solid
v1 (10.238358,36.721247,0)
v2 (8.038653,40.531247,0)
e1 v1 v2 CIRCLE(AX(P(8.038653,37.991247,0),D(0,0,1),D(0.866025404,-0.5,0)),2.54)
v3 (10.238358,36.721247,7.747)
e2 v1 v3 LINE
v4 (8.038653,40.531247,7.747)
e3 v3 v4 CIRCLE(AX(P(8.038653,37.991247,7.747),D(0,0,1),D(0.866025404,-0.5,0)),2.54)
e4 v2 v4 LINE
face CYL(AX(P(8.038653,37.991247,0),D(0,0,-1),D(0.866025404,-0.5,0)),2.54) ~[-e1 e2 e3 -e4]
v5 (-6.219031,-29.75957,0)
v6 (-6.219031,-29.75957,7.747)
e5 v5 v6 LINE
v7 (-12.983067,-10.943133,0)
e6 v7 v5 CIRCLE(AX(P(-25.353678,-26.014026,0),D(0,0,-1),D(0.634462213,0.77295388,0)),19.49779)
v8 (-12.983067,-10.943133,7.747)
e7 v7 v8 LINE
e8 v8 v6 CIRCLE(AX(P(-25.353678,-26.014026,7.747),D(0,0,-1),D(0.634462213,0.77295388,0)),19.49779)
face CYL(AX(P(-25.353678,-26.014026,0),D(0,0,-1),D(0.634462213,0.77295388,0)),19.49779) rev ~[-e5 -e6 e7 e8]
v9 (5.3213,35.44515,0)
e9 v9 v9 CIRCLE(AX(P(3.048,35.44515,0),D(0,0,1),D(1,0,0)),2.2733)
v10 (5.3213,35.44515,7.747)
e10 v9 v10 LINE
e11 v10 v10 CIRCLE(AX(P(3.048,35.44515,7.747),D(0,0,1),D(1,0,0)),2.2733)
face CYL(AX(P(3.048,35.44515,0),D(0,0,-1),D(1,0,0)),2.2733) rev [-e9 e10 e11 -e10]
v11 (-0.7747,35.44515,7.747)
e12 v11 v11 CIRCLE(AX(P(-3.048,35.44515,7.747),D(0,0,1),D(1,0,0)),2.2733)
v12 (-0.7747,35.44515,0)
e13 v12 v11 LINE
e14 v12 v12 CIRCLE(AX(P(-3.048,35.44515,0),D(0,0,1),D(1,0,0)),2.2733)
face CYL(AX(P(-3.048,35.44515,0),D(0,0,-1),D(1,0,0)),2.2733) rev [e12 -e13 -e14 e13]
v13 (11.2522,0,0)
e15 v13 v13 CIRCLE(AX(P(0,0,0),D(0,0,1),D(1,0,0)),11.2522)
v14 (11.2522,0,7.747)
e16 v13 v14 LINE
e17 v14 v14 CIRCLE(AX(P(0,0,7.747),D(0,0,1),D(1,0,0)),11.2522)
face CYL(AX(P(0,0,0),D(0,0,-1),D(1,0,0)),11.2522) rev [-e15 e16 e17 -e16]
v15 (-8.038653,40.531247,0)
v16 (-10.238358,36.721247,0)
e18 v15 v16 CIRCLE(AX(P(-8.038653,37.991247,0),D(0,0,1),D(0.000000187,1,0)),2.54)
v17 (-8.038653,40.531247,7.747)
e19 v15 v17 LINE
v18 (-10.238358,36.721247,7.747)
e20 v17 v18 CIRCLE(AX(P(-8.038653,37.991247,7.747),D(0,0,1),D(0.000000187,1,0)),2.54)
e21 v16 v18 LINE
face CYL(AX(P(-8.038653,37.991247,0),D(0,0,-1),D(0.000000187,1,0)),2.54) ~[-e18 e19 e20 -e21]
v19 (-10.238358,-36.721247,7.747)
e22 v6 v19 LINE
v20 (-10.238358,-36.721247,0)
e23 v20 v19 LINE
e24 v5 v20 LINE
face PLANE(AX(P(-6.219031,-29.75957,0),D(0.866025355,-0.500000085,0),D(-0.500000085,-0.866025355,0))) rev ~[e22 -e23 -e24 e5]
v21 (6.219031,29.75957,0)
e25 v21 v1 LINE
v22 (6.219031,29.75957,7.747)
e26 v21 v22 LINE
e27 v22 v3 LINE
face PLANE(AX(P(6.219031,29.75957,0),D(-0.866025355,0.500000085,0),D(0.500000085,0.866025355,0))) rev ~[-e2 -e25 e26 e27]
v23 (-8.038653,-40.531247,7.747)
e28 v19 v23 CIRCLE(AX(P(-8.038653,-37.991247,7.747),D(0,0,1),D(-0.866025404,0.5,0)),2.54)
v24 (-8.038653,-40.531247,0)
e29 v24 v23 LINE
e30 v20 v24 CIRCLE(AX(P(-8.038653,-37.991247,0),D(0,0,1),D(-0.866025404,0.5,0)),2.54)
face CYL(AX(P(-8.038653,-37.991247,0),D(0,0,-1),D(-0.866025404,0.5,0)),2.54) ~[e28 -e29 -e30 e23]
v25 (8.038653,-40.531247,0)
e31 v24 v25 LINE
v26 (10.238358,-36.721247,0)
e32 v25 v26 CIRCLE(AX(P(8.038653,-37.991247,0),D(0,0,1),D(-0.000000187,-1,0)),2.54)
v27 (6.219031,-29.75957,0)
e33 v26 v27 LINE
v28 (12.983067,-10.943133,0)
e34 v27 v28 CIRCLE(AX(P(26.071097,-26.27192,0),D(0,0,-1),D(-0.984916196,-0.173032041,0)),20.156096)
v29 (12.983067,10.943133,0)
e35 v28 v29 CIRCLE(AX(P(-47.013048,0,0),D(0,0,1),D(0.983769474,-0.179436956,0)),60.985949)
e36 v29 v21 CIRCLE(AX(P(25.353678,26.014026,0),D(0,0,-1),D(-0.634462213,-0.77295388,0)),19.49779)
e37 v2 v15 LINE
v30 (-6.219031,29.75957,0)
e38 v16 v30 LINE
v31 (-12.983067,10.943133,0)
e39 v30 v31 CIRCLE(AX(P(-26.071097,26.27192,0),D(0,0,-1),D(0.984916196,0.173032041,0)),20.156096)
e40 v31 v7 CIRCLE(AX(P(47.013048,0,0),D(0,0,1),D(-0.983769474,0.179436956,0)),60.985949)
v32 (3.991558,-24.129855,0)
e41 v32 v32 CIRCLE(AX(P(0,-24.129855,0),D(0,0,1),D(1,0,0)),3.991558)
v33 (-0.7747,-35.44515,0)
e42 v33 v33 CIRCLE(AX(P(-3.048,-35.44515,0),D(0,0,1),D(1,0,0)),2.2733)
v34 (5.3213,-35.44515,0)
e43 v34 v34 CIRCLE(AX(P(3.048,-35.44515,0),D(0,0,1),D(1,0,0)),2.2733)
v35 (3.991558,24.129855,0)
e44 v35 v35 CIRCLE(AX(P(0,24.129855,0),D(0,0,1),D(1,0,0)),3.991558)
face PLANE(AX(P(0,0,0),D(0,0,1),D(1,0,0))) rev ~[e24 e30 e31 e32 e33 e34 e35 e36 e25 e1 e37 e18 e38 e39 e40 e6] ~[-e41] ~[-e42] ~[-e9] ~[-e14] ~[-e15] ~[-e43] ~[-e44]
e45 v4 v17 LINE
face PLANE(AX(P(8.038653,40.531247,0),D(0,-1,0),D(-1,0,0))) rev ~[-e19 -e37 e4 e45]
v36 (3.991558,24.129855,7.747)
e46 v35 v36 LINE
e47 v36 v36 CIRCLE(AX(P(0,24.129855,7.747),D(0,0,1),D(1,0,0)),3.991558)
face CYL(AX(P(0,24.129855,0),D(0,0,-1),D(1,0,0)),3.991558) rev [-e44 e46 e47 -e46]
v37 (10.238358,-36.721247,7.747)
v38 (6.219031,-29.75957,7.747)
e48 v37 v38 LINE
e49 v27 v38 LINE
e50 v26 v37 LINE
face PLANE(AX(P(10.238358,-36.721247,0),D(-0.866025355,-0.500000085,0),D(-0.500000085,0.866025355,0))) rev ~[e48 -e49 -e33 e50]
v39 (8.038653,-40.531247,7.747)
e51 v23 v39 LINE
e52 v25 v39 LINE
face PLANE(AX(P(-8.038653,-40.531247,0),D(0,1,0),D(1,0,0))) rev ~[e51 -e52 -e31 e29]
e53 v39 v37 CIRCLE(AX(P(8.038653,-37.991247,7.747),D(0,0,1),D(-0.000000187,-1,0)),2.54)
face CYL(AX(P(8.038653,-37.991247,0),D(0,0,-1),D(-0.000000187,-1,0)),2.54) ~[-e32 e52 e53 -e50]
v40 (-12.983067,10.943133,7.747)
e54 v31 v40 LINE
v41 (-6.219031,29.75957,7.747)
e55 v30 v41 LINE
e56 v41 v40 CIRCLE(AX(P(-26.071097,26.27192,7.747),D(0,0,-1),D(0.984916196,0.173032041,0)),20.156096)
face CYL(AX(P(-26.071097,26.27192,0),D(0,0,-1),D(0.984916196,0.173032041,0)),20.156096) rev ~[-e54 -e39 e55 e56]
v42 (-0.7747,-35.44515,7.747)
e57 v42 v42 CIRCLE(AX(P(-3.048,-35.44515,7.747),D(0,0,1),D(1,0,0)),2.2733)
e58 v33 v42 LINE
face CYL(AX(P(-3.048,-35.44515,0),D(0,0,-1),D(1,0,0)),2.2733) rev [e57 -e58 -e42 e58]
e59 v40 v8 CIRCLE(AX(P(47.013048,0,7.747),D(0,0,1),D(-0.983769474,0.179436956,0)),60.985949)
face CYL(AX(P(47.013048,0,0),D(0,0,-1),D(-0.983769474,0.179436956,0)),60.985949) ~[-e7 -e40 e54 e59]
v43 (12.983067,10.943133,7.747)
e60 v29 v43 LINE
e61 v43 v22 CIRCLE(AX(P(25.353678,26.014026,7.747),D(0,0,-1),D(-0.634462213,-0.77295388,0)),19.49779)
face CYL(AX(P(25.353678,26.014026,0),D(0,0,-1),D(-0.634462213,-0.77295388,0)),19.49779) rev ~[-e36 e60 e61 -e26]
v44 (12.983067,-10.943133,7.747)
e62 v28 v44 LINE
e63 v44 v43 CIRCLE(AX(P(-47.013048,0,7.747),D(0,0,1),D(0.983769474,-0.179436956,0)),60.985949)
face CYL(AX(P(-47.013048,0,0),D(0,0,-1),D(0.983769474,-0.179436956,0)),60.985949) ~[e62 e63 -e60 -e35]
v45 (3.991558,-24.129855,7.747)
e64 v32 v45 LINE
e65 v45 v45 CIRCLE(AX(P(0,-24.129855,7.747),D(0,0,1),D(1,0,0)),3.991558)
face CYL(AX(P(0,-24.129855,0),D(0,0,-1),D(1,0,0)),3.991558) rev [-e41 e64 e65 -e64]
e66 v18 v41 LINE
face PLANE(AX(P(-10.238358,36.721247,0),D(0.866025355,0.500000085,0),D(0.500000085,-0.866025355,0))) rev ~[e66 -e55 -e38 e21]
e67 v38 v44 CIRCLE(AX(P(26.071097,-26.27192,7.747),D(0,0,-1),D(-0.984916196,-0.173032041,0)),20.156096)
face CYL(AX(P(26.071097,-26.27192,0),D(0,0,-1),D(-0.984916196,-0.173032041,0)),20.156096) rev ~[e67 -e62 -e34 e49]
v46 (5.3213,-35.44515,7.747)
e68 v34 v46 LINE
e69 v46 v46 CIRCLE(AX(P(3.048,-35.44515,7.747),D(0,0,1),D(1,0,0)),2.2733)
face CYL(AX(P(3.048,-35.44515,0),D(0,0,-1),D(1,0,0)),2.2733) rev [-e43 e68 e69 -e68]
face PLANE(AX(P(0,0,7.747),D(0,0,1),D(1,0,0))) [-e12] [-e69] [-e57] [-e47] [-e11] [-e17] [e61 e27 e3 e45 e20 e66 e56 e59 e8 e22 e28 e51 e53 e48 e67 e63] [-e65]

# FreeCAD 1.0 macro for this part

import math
import FreeCAD as App
import Part
import Sketcher

V = App.Vector
Q = App.Units.Quantity

doc = App.newDocument("Part")
body = doc.addObject("PartDesign::Body", "Body")

# Sketch on XY plane
sketch1 = body.newObject("Sketcher::SketchObject", "Sketch")
sketch1.AttachmentSupport = (doc.getObject("XY_Plane"), [""])
sketch1.MapMode = "FlatFace"
sketch1.addGeometry([
    Part.LineSegment(V(-10.2, 36.7, 0), V(-6.2, 29.8, 0)),  # 0
    Part.ArcOfCircle(Part.Circle(V(-26.1, 26.3, 0), V(0, 0, 1), 20.2), math.radians(-50), math.radians(10)),  # 1
    Part.ArcOfCircle(Part.Circle(V(47, 0, 0), V(0, 0, 1), 61), math.radians(170), math.radians(190)),  # 2
    Part.ArcOfCircle(Part.Circle(V(-25.4, -26, 0), V(0, 0, 1), 19.5), math.radians(-11), math.radians(51)),  # 3
    Part.LineSegment(V(-6.2, -29.8, 0), V(-10.2, -36.7, 0)),  # 4
    Part.ArcOfCircle(Part.Circle(V(-8, -38, 0), V(0, 0, 1), 2.5), math.radians(150), math.radians(270)),  # 5
    Part.LineSegment(V(-8, -40.5, 0), V(8, -40.5, 0)),  # 6
    Part.ArcOfCircle(Part.Circle(V(8, -38, 0), V(0, 0, 1), 2.5), math.radians(-90), math.radians(30)),  # 7
    Part.LineSegment(V(10.2, -36.7, 0), V(6.2, -29.8, 0)),  # 8
    Part.ArcOfCircle(Part.Circle(V(26.1, -26.3, 0), V(0, 0, 1), 20.2), math.radians(130), math.radians(190)),  # 9
    Part.ArcOfCircle(Part.Circle(V(-47, 0, 0), V(0, 0, 1), 61), math.radians(-10), math.radians(10)),  # 10
    Part.ArcOfCircle(Part.Circle(V(25.4, 26, 0), V(0, 0, 1), 19.5), math.radians(169), math.radians(231)),  # 11
    Part.LineSegment(V(6.2, 29.8, 0), V(10.2, 36.7, 0)),  # 12
    Part.ArcOfCircle(Part.Circle(V(8, 38, 0), V(0, 0, 1), 2.5), math.radians(-30), math.radians(90)),  # 13
    Part.LineSegment(V(8, 40.5, 0), V(-8, 40.5, 0)),  # 14
    Part.ArcOfCircle(Part.Circle(V(-8, 38, 0), V(0, 0, 1), 2.5), math.radians(90), math.radians(210)),  # 15
    Part.Circle(V(-3, -35.4, 0), V(0, 0, 1), 2.3),  # 16
    Part.Circle(V(0, -24.1, 0), V(0, 0, 1), 4),  # 17
    Part.Circle(V(3, -35.4, 0), V(0, 0, 1), 2.3),  # 18
    Part.Circle(V(0, 0, 0), V(0, 0, 1), 11.3),  # 19
    Part.Circle(V(0, 24.1, 0), V(0, 0, 1), 4),  # 20
    Part.Circle(V(-3, 35.4, 0), V(0, 0, 1), 2.3),  # 21
    Part.Circle(V(3, 35.4, 0), V(0, 0, 1), 2.3),  # 22
], False)
sketch1.addConstraint([
    Sketcher.Constraint("Coincident", 0, 2, 1, 2),
    Sketcher.Constraint("Coincident", 1, 1, 2, 1),
    Sketcher.Constraint("Coincident", 2, 2, 3, 2),
    Sketcher.Constraint("Coincident", 3, 1, 4, 1),
    Sketcher.Constraint("Tangent", 4, 2, 5, 1),
    Sketcher.Constraint("Tangent", 5, 2, 6, 1),
    Sketcher.Constraint("Tangent", 6, 2, 7, 1),
    Sketcher.Constraint("Tangent", 7, 2, 8, 1),
    Sketcher.Constraint("Coincident", 8, 2, 9, 2),
    Sketcher.Constraint("Coincident", 9, 1, 10, 1),
    Sketcher.Constraint("Coincident", 10, 2, 11, 2),
    Sketcher.Constraint("Coincident", 11, 1, 12, 1),
    Sketcher.Constraint("Tangent", 12, 2, 13, 1),
    Sketcher.Constraint("Tangent", 13, 2, 14, 1),
    Sketcher.Constraint("Tangent", 14, 2, 15, 1),
    Sketcher.Constraint("Tangent", 15, 2, 0, 1),
    Sketcher.Constraint("Horizontal", 6),
    Sketcher.Constraint("Horizontal", 14),
    Sketcher.Constraint("Coincident", 19, 3, -1, 1),
    Sketcher.Constraint("Equal", 5, 7),
    Sketcher.Constraint("Equal", 1, 9),
    Sketcher.Constraint("Equal", 2, 10),
    Sketcher.Constraint("Equal", 3, 11),
    Sketcher.Constraint("Equal", 7, 13),
    Sketcher.Constraint("Equal", 13, 15),
    Sketcher.Constraint("Equal", 16, 18),
    Sketcher.Constraint("Equal", 17, 20),
    Sketcher.Constraint("Equal", 18, 21),
    Sketcher.Constraint("Equal", 21, 22),
    Sketcher.Constraint("Symmetric", 1, 3, 9, 3, -1, 1),
    Sketcher.Constraint("Symmetric", 2, 3, 10, 3, -1, 1),
    Sketcher.Constraint("Symmetric", 3, 3, 11, 3, -1, 1),
    Sketcher.Constraint("Symmetric", 5, 3, 13, 3, -1, 1),
    Sketcher.Constraint("Symmetric", 17, 3, 20, 3, -1, 1),
    Sketcher.Constraint("Symmetric", 18, 3, 21, 3, -1, 1),
    Sketcher.Constraint("Symmetric", 16, 3, 22, 3, -1, 1),
    Sketcher.Constraint("Symmetric", 7, 2, 15, 2, -1, 1),
    Sketcher.Constraint("Symmetric", 16, 3, 18, 3, -2),
    Sketcher.Constraint("Symmetric", 4, 2, 7, 2, -2),
    Sketcher.Constraint("Symmetric", 2, 2, 9, 1, -2),
    Sketcher.Constraint("Symmetric", 0, 2, 11, 1, -2),
    Sketcher.Constraint("PointOnObject", 17, 3, -2),
    Sketcher.Constraint("Radius", 5, Q("0.1 in")),
    Sketcher.Constraint("Diameter", 16, Q("0.179 in")),
    Sketcher.Constraint("Diameter", 19, Q("0.886 in")),
    Sketcher.Constraint("Angle", 0, Q("-59.999994 deg")),
    Sketcher.Constraint("DistanceX", 16, 3, -1, 1, Q("0.12 in")),
    Sketcher.Constraint("Radius", 2, Q("60.985949 mm")),
    Sketcher.Constraint("Radius", 3, Q("19.49779 mm")),
    Sketcher.Constraint("Diameter", 17, Q("7.983116 mm")),
    Sketcher.Constraint("Radius", 1, Q("20.156096 mm")),
    Sketcher.Constraint("DistanceX", 5, 3, 2, 3, Q("55.051701 mm")),
    Sketcher.Constraint("DistanceX", 6, 1, 6, 2, Q("16.077306 mm")),
    Sketcher.Constraint("DistanceY", -1, 1, 1, 3, Q("26.27192 mm")),
    Sketcher.Constraint("DistanceX", 3, 3, -1, 1, Q("25.353678 mm")),
    Sketcher.Constraint("DistanceY", 16, 3, -1, 1, Q("35.44515 mm")),
    Sketcher.Constraint("DistanceX", 0, 2, -1, 1, Q("6.219031 mm")),
    Sketcher.Constraint("DistanceY", 3, 3, 17, 3, Q("1.884171 mm")),
])
pad1 = body.newObject("PartDesign::Pad", "Pad")
pad1.Profile = sketch1
pad1.Length = Q("0.305 in")

doc.recompute()
